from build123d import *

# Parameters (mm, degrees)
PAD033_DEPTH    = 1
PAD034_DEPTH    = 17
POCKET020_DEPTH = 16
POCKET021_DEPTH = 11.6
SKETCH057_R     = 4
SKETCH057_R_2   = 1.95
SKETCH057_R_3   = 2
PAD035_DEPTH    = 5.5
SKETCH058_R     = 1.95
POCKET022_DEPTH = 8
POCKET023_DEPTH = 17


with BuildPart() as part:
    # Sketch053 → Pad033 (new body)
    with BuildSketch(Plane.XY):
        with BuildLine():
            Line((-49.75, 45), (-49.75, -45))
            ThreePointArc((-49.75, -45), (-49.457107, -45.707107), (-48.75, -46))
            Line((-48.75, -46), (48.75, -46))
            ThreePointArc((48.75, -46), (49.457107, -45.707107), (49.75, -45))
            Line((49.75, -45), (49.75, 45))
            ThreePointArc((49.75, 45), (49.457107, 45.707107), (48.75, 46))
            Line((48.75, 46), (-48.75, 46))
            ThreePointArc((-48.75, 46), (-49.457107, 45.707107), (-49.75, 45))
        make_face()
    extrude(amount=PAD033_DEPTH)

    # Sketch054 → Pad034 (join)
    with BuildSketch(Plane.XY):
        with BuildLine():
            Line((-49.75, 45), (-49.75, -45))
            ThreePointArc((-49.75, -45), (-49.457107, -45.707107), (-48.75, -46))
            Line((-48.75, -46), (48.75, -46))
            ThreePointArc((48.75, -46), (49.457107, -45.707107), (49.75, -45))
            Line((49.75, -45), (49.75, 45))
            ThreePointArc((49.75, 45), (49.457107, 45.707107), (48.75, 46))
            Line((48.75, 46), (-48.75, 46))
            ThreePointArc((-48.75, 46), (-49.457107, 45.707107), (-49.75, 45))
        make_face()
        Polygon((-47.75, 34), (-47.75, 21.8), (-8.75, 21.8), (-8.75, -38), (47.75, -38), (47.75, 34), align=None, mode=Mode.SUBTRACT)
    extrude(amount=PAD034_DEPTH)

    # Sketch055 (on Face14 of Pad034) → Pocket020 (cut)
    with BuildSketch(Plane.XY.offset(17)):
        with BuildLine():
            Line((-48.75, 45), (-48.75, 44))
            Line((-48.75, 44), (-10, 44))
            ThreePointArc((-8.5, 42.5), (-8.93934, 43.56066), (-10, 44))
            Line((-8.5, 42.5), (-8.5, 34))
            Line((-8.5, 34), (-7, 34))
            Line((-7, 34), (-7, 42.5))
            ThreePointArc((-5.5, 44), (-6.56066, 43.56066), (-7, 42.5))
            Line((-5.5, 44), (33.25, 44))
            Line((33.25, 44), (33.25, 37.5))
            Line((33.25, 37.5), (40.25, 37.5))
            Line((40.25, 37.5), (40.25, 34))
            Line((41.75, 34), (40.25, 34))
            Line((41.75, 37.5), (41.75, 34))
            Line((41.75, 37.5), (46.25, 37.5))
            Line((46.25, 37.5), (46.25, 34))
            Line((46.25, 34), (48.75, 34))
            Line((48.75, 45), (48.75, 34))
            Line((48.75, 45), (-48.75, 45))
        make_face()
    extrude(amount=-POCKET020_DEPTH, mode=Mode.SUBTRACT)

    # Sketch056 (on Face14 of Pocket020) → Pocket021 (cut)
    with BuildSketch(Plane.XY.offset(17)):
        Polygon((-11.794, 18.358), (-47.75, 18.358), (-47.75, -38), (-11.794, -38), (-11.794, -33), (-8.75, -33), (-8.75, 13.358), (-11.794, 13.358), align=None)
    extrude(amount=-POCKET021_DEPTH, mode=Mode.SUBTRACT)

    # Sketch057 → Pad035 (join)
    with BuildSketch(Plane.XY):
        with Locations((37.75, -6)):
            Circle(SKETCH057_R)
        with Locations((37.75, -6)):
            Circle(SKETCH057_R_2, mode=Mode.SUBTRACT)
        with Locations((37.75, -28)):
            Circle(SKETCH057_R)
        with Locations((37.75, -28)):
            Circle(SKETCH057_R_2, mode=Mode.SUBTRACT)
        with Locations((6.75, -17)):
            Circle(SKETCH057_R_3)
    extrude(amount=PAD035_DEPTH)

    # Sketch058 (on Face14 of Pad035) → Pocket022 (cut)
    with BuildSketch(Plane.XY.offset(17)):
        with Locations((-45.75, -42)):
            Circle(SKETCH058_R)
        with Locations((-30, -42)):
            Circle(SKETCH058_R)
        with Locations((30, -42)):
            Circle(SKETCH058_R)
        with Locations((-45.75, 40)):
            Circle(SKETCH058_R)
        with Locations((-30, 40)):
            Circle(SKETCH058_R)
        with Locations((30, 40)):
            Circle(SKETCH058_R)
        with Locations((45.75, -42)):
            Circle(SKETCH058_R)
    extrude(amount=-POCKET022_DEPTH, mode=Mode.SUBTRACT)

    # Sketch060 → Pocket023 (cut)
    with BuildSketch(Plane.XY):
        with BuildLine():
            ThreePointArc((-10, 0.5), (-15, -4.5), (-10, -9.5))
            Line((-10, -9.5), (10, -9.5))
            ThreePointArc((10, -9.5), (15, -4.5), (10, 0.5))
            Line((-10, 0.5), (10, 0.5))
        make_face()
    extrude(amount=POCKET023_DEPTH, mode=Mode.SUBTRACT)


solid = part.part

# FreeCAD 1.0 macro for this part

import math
import FreeCAD as App
import Part
import Sketcher
from FreeCAD import Vector


def add_polygon(sketch, points):
    """Adds a closed chain of lines whose ends are joined by coincident constraints."""
    first, n = sketch.GeometryCount, len(points)
    for a, b in zip(points, points[1:] + points[:1]):
        sketch.addGeometry(Part.LineSegment(App.Vector(*a, 0), App.Vector(*b, 0)), False)
    for i in range(n):
        sketch.addConstraint(Sketcher.Constraint("Coincident", first + i, 2, first + (i + 1) % n, 1))

doc = App.newDocument("Part")
body = doc.addObject("PartDesign::Body", "Body")

sketch1 = doc.addObject("Sketcher::SketchObject", "Sketch")
body.addObject(sketch1)
sketch1.AttachmentSupport = (doc.XY_Plane, [""])
sketch1.MapMode = "FlatFace"
sketch1.addGeometry([
    Part.LineSegment(Vector(-49.8, 45, 0), Vector(-49.8, -45, 0)),
    Part.ArcOfCircle(Part.Circle(Vector(-48.8, -45, 0), Vector(0, 0, 1), 1), math.radians(180), math.radians(270)),
    Part.LineSegment(Vector(-48.8, -46, 0), Vector(48.8, -46, 0)),
    Part.ArcOfCircle(Part.Circle(Vector(48.8, -45, 0), Vector(0, 0, 1), 1), math.radians(-90), math.radians(0)),
    Part.LineSegment(Vector(49.8, -45, 0), Vector(49.8, 45, 0)),
    Part.ArcOfCircle(Part.Circle(Vector(48.8, 45, 0), Vector(0, 0, 1), 1), math.radians(0), math.radians(90)),
    Part.LineSegment(Vector(48.8, 46, 0), Vector(-48.8, 46, 0)),
    Part.ArcOfCircle(Part.Circle(Vector(-48.8, 45, 0), Vector(0, 0, 1), 1), math.radians(90), math.radians(180)),
], False)
sketch1.addConstraint([
    Sketcher.Constraint("Tangent", 0, 2, 1, 1),
    Sketcher.Constraint("Tangent", 1, 2, 2, 1),
    Sketcher.Constraint("Tangent", 2, 2, 3, 1),
    Sketcher.Constraint("Tangent", 3, 2, 4, 1),
    Sketcher.Constraint("Tangent", 4, 2, 5, 1),
    Sketcher.Constraint("Tangent", 5, 2, 6, 1),
    Sketcher.Constraint("Tangent", 6, 2, 7, 1),
    Sketcher.Constraint("Tangent", 7, 2, 0, 1),
    Sketcher.Constraint("Vertical", 0),
    Sketcher.Constraint("Horizontal", 2),
    Sketcher.Constraint("Vertical", 4),
    Sketcher.Constraint("Horizontal", 6),
    Sketcher.Constraint("Equal", 1, 3),
    Sketcher.Constraint("Equal", 3, 5),
    Sketcher.Constraint("Equal", 5, 7),
    Sketcher.Constraint("Symmetric", 1, 3, 5, 3, -1, 1),
    Sketcher.Constraint("Radius", 1, 0.999999),
    Sketcher.Constraint("DistanceY", 0, 2, 0, 1, 90.0),
    Sketcher.Constraint("DistanceX", 2, 1, 2, 2, 97.5),
])
pad1 = doc.addObject("PartDesign::Pad", "Pad")
body.addObject(pad1)
pad1.Profile = sketch1
pad1.Length = 1

sketch2 = doc.addObject("Sketcher::SketchObject", "Sketch001")
body.addObject(sketch2)
sketch2.AttachmentSupport = (doc.XY_Plane, [""])
sketch2.MapMode = "FlatFace"
sketch2.addGeometry(Part.LineSegment(Vector(-49.8, 45, 0), Vector(-49.8, -45, 0)), False)
sketch2.addGeometry(Part.ArcOfCircle(Part.Circle(Vector(-48.8, -45, 0), Vector(0, 0, 1), 1), math.radians(180), math.radians(270)), False)
sketch2.addGeometry(Part.LineSegment(Vector(-48.8, -46, 0), Vector(48.8, -46, 0)), False)
sketch2.addGeometry(Part.ArcOfCircle(Part.Circle(Vector(48.8, -45, 0), Vector(0, 0, 1), 1), math.radians(-90), math.radians(0)), False)
sketch2.addGeometry(Part.LineSegment(Vector(49.8, -45, 0), Vector(49.8, 45, 0)), False)
sketch2.addGeometry(Part.ArcOfCircle(Part.Circle(Vector(48.8, 45, 0), Vector(0, 0, 1), 1), math.radians(0), math.radians(90)), False)
sketch2.addGeometry(Part.LineSegment(Vector(48.8, 46, 0), Vector(-48.8, 46, 0)), False)
sketch2.addGeometry(Part.ArcOfCircle(Part.Circle(Vector(-48.8, 45, 0), Vector(0, 0, 1), 1), math.radians(90), math.radians(180)), False)
add_polygon(sketch2, [(-47.8, 21.8), (-47.8, 34), (47.8, 34), (47.8, -38), (-8.8, -38), (-8.8, 21.8)])
sketch2.addConstraint([
    Sketcher.Constraint("Tangent", 0, 2, 1, 1),
    Sketcher.Constraint("Tangent", 1, 2, 2, 1),
    Sketcher.Constraint("Tangent", 2, 2, 3, 1),
    Sketcher.Constraint("Tangent", 3, 2, 4, 1),
    Sketcher.Constraint("Tangent", 4, 2, 5, 1),
    Sketcher.Constraint("Tangent", 5, 2, 6, 1),
    Sketcher.Constraint("Tangent", 6, 2, 7, 1),
    Sketcher.Constraint("Tangent", 7, 2, 0, 1),
    Sketcher.Constraint("Vertical", 0),
    Sketcher.Constraint("Horizontal", 2),
    Sketcher.Constraint("Vertical", 4),
    Sketcher.Constraint("Horizontal", 6),
    Sketcher.Constraint("Vertical", 8),
    Sketcher.Constraint("Horizontal", 9),
    Sketcher.Constraint("Vertical", 10),
    Sketcher.Constraint("Horizontal", 11),
    Sketcher.Constraint("Vertical", 12),
    Sketcher.Constraint("Horizontal", 13),
    Sketcher.Constraint("Equal", 1, 3),
    Sketcher.Constraint("Equal", 3, 5),
    Sketcher.Constraint("Equal", 5, 7),
    Sketcher.Constraint("Symmetric", 1, 3, 5, 3, -1, 1),
    Sketcher.Constraint("Radius", 1, 0.999999),
    Sketcher.Constraint("DistanceX", 13, 2, 13, 1, 39.0),
    Sketcher.Constraint("DistanceY", 0, 2, 0, 1, 90.0),
    Sketcher.Constraint("DistanceY", 10, 2, 10, 1, 72.0),
    Sketcher.Constraint("DistanceX", 2, 1, 2, 2, 97.5),
    Sketcher.Constraint("DistanceX", 9, 1, 9, 2, 95.5),
    Sketcher.Constraint("DistanceY", 8, 1, 8, 2, 12.2),
    Sketcher.Constraint("DistanceY", -1, 1, 8, 2, 34.0),
    Sketcher.Constraint("DistanceX", 7, 3, 8, 2, 1.000001),
])
pad2 = doc.addObject("PartDesign::Pad", "Pad001")
body.addObject(pad2)
pad2.Profile = sketch2
pad2.Length = 17

sketch3 = doc.addObject("Sketcher::SketchObject", "Sketch002")
body.addObject(sketch3)
sketch3.AttachmentSupport = (doc.XY_Plane, [""])
sketch3.MapMode = "FlatFace"
sketch3.AttachmentOffset = App.Placement(Vector(0, 0, 17), App.Rotation())
sketch3.addGeometry([
    Part.LineSegment(Vector(-48.8, 45, 0), Vector(-48.8, 44, 0)),
    Part.LineSegment(Vector(-48.8, 44, 0), Vector(-10, 44, 0)),
    Part.ArcOfCircle(Part.Circle(Vector(-10, 42.5, 0), Vector(0, 0, 1), 1.5), math.radians(0), math.radians(90)),
    Part.LineSegment(Vector(-8.5, 42.5, 0), Vector(-8.5, 34, 0)),
    Part.LineSegment(Vector(-8.5, 34, 0), Vector(-7, 34, 0)),
    Part.LineSegment(Vector(-7, 34, 0), Vector(-7, 42.5, 0)),
    Part.ArcOfCircle(Part.Circle(Vector(-5.5, 42.5, 0), Vector(0, 0, 1), 1.5), math.radians(90), math.radians(180)),
    Part.LineSegment(Vector(-5.5, 44, 0), Vector(33.2, 44, 0)),
    Part.LineSegment(Vector(33.2, 44, 0), Vector(33.2, 37.5, 0)),
    Part.LineSegment(Vector(33.2, 37.5, 0), Vector(40.2, 37.5, 0)),
    Part.LineSegment(Vector(40.2, 37.5, 0), Vector(40.2, 34, 0)),
    Part.LineSegment(Vector(40.2, 34, 0), Vector(41.8, 34, 0)),
    Part.LineSegment(Vector(41.8, 34, 0), Vector(41.8, 37.5, 0)),
    Part.LineSegment(Vector(41.8, 37.5, 0), Vector(46.2, 37.5, 0)),
    Part.LineSegment(Vector(46.2, 37.5, 0), Vector(46.2, 34, 0)),
    Part.LineSegment(Vector(46.2, 34, 0), Vector(48.8, 34, 0)),
    Part.LineSegment(Vector(48.8, 34, 0), Vector(48.8, 45, 0)),
    Part.LineSegment(Vector(48.8, 45, 0), Vector(-48.8, 45, 0)),
], False)
sketch3.addConstraint([
    Sketcher.Constraint("Coincident", 0, 2, 1, 1),
    Sketcher.Constraint("Tangent", 1, 2, 2, 2),
    Sketcher.Constraint("Tangent", 2, 1, 3, 1),
    Sketcher.Constraint("Coincident", 3, 2, 4, 1),
    Sketcher.Constraint("Coincident", 4, 2, 5, 1),
    Sketcher.Constraint("Tangent", 5, 2, 6, 2),
    Sketcher.Constraint("Tangent", 6, 1, 7, 1),
    Sketcher.Constraint("Coincident", 7, 2, 8, 1),
    Sketcher.Constraint("Coincident", 8, 2, 9, 1),
    Sketcher.Constraint("Coincident", 9, 2, 10, 1),
    Sketcher.Constraint("Coincident", 10, 2, 11, 1),
    Sketcher.Constraint("Coincident", 11, 2, 12, 1),
    Sketcher.Constraint("Coincident", 12, 2, 13, 1),
    Sketcher.Constraint("Coincident", 13, 2, 14, 1),
    Sketcher.Constraint("Coincident", 14, 2, 15, 1),
    Sketcher.Constraint("Coincident", 15, 2, 16, 1),
    Sketcher.Constraint("Coincident", 16, 2, 17, 1),
    Sketcher.Constraint("Coincident", 17, 2, 0, 1),
    Sketcher.Constraint("Vertical", 0),
    Sketcher.Constraint("Horizontal", 1),
    Sketcher.Constraint("Vertical", 3),
    Sketcher.Constraint("Horizontal", 4),
    Sketcher.Constraint("Vertical", 5),
    Sketcher.Constraint("Horizontal", 7),
    Sketcher.Constraint("Vertical", 8),
    Sketcher.Constraint("Horizontal", 9),
    Sketcher.Constraint("Vertical", 10),
    Sketcher.Constraint("Horizontal", 11),
    Sketcher.Constraint("Vertical", 12),
    Sketcher.Constraint("Horizontal", 13),
    Sketcher.Constraint("Vertical", 14),
    Sketcher.Constraint("Horizontal", 15),
    Sketcher.Constraint("Vertical", 16),
    Sketcher.Constraint("Horizontal", 17),
    Sketcher.Constraint("Equal", 2, 6),
    Sketcher.Constraint("Horizontal", 2, 3, 6, 3),
    Sketcher.Constraint("Horizontal", 4, 2, 10, 2),
    Sketcher.Constraint("Horizontal", 9, 2, 12, 2),
    Sketcher.Constraint("Horizontal", 11, 2, 14, 2),
    Sketcher.Constraint("Equal", 1, 7),
    Sketcher.Constraint("Equal", 4, 11),
    Sketcher.Constraint("Radius", 2, 1.500001),
    Sketcher.Constraint("DistanceX", 9, 1, 9, 2, 7.0),
    Sketcher.Constraint("DistanceY", 0, 2, 0, 1, 1.0),
    Sketcher.Constraint("DistanceY", 16, 1, 16, 2, 11.0),
    Sketcher.Constraint("DistanceX", 4, 1, 4, 2, 1.5),
    Sketcher.Constraint("DistanceX", 13, 1, 13, 2, 4.5),
    Sketcher.Constraint("DistanceX", 15, 1, 15, 2, 2.5),
    Sketcher.Constraint("DistanceX", 17, 2, 17, 1, 97.5),
    Sketcher.Constraint("DistanceY", 8, 2, 8, 1, 6.5),
    Sketcher.Constraint("DistanceX", 2, 3, -1, 1, 10.000001),
    Sketcher.Constraint("DistanceY", -1, 1, 0, 2, 44.0),
])
pocket1 = doc.addObject("PartDesign::Pocket", "Pocket")
body.addObject(pocket1)
pocket1.Profile = sketch3
pocket1.Length = 16

sketch4 = doc.addObject("Sketcher::SketchObject", "Sketch003")
body.addObject(sketch4)
sketch4.AttachmentSupport = (doc.XY_Plane, [""])
sketch4.MapMode = "FlatFace"
sketch4.AttachmentOffset = App.Placement(Vector(0, 0, 17), App.Rotation())
add_polygon(sketch4, [(-11.8, 18.4), (-47.8, 18.4), (-47.8, -38), (-11.8, -38), (-11.8, -33), (-8.8, -33), (-8.8, 13.4), (-11.8, 13.4)])
sketch4.addConstraint([
    Sketcher.Constraint("Horizontal", 0),
    Sketcher.Constraint("Vertical", 1),
    Sketcher.Constraint("Horizontal", 2),
    Sketcher.Constraint("Vertical", 3),
    Sketcher.Constraint("Horizontal", 4),
    Sketcher.Constraint("Vertical", 5),
    Sketcher.Constraint("Horizontal", 6),
    Sketcher.Constraint("Vertical", 7),
    Sketcher.Constraint("Vertical", 3, 2, 6, 2),
    Sketcher.Constraint("Equal", 3, 7),
    Sketcher.Constraint("DistanceY", 3, 1, 3, 2, 5.0),
    Sketcher.Constraint("DistanceY", 1, 2, -1, 1, 38.0),
    Sketcher.Constraint("DistanceX", 1, 2, 4, 2, 39.0),
    Sketcher.Constraint("DistanceX", 0, 2, 0, 1, 35.956),
    Sketcher.Constraint("DistanceY", 1, 2, 1, 1, 56.358),
    Sketcher.Constraint("DistanceX", 0, 2, -1, 1, 47.75),
])
pocket2 = doc.addObject("PartDesign::Pocket", "Pocket001")
body.addObject(pocket2)
pocket2.Profile = sketch4
pocket2.Length = 11.6

sketch5 = doc.addObject("Sketcher::SketchObject", "Sketch004")
body.addObject(sketch5)
sketch5.AttachmentSupport = (doc.XY_Plane, [""])
sketch5.MapMode = "FlatFace"
sketch5.addGeometry([
    Part.Circle(Vector(37.8, -6, 0), Vector(0, 0, 1), 4),
    Part.Circle(Vector(37.8, -6, 0), Vector(0, 0, 1), 1.9),
    Part.Circle(Vector(37.8, -28, 0), Vector(0, 0, 1), 4),
    Part.Circle(Vector(37.8, -28, 0), Vector(0, 0, 1), 1.9),
    Part.Circle(Vector(6.8, -17, 0), Vector(0, 0, 1), 2),
], False)
sketch5.addConstraint([
    Sketcher.Constraint("Coincident", 1, 3, 0, 3),
    Sketcher.Constraint("Coincident", 3, 3, 2, 3),
    Sketcher.Constraint("Equal", 0, 2),
    Sketcher.Constraint("Equal", 1, 3),
    Sketcher.Constraint("Vertical", 1, 3, 2, 3),
    Sketcher.Constraint("Diameter", 0, 8.0),
    Sketcher.Constraint("Diameter", 4, 4.0),
    Sketcher.Constraint("Diameter", 1, 3.9),
    Sketcher.Constraint("DistanceY", 0, 3, -1, 1, 6.0),
    Sketcher.Constraint("DistanceY", 2, 3, -1, 1, 28.0),
    Sketcher.Constraint("DistanceY", 4, 3, -1, 1, 17.0),
    Sketcher.Constraint("DistanceX", 4, 3, 0, 3, 31.0),
    Sketcher.Constraint("DistanceX", -1, 1, 0, 3, 37.75),
])
pad3 = doc.addObject("PartDesign::Pad", "Pad002")
body.addObject(pad3)
pad3.Profile = sketch5
pad3.Length = 5.5

sketch6 = doc.addObject("Sketcher::SketchObject", "Sketch005")
body.addObject(sketch6)
sketch6.AttachmentSupport = (doc.XY_Plane, [""])
sketch6.MapMode = "FlatFace"
sketch6.AttachmentOffset = App.Placement(Vector(0, 0, 17), App.Rotation())
sketch6.addGeometry([
    Part.Circle(Vector(-45.8, -42, 0), Vector(0, 0, 1), 1.9),
    Part.Circle(Vector(-30, -42, 0), Vector(0, 0, 1), 1.9),
    Part.Circle(Vector(30, -42, 0), Vector(0, 0, 1), 1.9),
    Part.Circle(Vector(-45.8, 40, 0), Vector(0, 0, 1), 1.9),
    Part.Circle(Vector(-30, 40, 0), Vector(0, 0, 1), 1.9),
    Part.Circle(Vector(30, 40, 0), Vector(0, 0, 1), 1.9),
    Part.Circle(Vector(45.8, -42, 0), Vector(0, 0, 1), 1.9),
], False)
sketch6.addConstraint([
    Sketcher.Constraint("Equal", 0, 1),
    Sketcher.Constraint("Equal", 1, 2),
    Sketcher.Constraint("Equal", 2, 3),
    Sketcher.Constraint("Equal", 3, 4),
    Sketcher.Constraint("Equal", 4, 5),
    Sketcher.Constraint("Equal", 5, 6),
    Sketcher.Constraint("Symmetric", 1, 3, 2, 3, -2),
    Sketcher.Constraint("Symmetric", 4, 3, 5, 3, -2),
    Sketcher.Constraint("Symmetric", 0, 3, 6, 3, -2),
    Sketcher.Constraint("Horizontal", 0, 3, 1, 3),
    Sketcher.Constraint("Horizontal", 3, 3, 4, 3),
    Sketcher.Constraint("Vertical", 0, 3, 3, 3),
    Sketcher.Constraint("Vertical", 1, 3, 4, 3),
    Sketcher.Constraint("Diameter", 0, 3.9),
    Sketcher.Constraint("DistanceY", 0, 3, -1, 1, 42.0),
    Sketcher.Constraint("DistanceX", 1, 3, -1, 1, 30.0),
    Sketcher.Constraint("DistanceY", -1, 1, 3, 3, 40.0),
    Sketcher.Constraint("DistanceX", 0, 3, 6, 3, 91.5),
])
pocket3 = doc.addObject("PartDesign::Pocket", "Pocket002")
body.addObject(pocket3)
pocket3.Profile = sketch6
pocket3.Length = 8

sketch7 = doc.addObject("Sketcher::SketchObject", "Sketch006")
body.addObject(sketch7)
sketch7.AttachmentSupport = (doc.XY_Plane, [""])
sketch7.MapMode = "FlatFace"
sketch7.addGeometry([
    Part.ArcOfCircle(Part.Circle(Vector(-10, -4, 0), Vector(0, 0, 1), 5), math.radians(90), math.radians(270)),
    Part.LineSegment(Vector(-10, -10, 0), Vector(10, -10, 0)),
    Part.ArcOfCircle(Part.Circle(Vector(10, -4, 0), Vector(0, 0, 1), 5), math.radians(-90), math.radians(90)),
    Part.LineSegment(Vector(10, 0, 0), Vector(-10, 0, 0)),
], False)
sketch7.addConstraint([
    Sketcher.Constraint("Tangent", 0, 2, 1, 1),
    Sketcher.Constraint("Tangent", 1, 2, 2, 1),
    Sketcher.Constraint("Tangent", 2, 2, 3, 1),
    Sketcher.Constraint("Tangent", 3, 2, 0, 1),
    Sketcher.Constraint("Horizontal", 1),
    Sketcher.Constraint("Horizontal", 3),
    Sketcher.Constraint("Radius", 0, 5.0),
    Sketcher.Constraint("DistanceX", 1, 1, 1, 2, 20.0),
    Sketcher.Constraint("DistanceX", 0, 3, -1, 1, 10.0),
    Sketcher.Constraint("DistanceY", 0, 3, -1, 1, 4.5),
])
pocket4 = doc.addObject("PartDesign::Pocket", "Pocket003")
body.addObject(pocket4)
pocket4.Profile = sketch7
pocket4.Length = 17
pocket4.Reversed = True

doc.recompute()
